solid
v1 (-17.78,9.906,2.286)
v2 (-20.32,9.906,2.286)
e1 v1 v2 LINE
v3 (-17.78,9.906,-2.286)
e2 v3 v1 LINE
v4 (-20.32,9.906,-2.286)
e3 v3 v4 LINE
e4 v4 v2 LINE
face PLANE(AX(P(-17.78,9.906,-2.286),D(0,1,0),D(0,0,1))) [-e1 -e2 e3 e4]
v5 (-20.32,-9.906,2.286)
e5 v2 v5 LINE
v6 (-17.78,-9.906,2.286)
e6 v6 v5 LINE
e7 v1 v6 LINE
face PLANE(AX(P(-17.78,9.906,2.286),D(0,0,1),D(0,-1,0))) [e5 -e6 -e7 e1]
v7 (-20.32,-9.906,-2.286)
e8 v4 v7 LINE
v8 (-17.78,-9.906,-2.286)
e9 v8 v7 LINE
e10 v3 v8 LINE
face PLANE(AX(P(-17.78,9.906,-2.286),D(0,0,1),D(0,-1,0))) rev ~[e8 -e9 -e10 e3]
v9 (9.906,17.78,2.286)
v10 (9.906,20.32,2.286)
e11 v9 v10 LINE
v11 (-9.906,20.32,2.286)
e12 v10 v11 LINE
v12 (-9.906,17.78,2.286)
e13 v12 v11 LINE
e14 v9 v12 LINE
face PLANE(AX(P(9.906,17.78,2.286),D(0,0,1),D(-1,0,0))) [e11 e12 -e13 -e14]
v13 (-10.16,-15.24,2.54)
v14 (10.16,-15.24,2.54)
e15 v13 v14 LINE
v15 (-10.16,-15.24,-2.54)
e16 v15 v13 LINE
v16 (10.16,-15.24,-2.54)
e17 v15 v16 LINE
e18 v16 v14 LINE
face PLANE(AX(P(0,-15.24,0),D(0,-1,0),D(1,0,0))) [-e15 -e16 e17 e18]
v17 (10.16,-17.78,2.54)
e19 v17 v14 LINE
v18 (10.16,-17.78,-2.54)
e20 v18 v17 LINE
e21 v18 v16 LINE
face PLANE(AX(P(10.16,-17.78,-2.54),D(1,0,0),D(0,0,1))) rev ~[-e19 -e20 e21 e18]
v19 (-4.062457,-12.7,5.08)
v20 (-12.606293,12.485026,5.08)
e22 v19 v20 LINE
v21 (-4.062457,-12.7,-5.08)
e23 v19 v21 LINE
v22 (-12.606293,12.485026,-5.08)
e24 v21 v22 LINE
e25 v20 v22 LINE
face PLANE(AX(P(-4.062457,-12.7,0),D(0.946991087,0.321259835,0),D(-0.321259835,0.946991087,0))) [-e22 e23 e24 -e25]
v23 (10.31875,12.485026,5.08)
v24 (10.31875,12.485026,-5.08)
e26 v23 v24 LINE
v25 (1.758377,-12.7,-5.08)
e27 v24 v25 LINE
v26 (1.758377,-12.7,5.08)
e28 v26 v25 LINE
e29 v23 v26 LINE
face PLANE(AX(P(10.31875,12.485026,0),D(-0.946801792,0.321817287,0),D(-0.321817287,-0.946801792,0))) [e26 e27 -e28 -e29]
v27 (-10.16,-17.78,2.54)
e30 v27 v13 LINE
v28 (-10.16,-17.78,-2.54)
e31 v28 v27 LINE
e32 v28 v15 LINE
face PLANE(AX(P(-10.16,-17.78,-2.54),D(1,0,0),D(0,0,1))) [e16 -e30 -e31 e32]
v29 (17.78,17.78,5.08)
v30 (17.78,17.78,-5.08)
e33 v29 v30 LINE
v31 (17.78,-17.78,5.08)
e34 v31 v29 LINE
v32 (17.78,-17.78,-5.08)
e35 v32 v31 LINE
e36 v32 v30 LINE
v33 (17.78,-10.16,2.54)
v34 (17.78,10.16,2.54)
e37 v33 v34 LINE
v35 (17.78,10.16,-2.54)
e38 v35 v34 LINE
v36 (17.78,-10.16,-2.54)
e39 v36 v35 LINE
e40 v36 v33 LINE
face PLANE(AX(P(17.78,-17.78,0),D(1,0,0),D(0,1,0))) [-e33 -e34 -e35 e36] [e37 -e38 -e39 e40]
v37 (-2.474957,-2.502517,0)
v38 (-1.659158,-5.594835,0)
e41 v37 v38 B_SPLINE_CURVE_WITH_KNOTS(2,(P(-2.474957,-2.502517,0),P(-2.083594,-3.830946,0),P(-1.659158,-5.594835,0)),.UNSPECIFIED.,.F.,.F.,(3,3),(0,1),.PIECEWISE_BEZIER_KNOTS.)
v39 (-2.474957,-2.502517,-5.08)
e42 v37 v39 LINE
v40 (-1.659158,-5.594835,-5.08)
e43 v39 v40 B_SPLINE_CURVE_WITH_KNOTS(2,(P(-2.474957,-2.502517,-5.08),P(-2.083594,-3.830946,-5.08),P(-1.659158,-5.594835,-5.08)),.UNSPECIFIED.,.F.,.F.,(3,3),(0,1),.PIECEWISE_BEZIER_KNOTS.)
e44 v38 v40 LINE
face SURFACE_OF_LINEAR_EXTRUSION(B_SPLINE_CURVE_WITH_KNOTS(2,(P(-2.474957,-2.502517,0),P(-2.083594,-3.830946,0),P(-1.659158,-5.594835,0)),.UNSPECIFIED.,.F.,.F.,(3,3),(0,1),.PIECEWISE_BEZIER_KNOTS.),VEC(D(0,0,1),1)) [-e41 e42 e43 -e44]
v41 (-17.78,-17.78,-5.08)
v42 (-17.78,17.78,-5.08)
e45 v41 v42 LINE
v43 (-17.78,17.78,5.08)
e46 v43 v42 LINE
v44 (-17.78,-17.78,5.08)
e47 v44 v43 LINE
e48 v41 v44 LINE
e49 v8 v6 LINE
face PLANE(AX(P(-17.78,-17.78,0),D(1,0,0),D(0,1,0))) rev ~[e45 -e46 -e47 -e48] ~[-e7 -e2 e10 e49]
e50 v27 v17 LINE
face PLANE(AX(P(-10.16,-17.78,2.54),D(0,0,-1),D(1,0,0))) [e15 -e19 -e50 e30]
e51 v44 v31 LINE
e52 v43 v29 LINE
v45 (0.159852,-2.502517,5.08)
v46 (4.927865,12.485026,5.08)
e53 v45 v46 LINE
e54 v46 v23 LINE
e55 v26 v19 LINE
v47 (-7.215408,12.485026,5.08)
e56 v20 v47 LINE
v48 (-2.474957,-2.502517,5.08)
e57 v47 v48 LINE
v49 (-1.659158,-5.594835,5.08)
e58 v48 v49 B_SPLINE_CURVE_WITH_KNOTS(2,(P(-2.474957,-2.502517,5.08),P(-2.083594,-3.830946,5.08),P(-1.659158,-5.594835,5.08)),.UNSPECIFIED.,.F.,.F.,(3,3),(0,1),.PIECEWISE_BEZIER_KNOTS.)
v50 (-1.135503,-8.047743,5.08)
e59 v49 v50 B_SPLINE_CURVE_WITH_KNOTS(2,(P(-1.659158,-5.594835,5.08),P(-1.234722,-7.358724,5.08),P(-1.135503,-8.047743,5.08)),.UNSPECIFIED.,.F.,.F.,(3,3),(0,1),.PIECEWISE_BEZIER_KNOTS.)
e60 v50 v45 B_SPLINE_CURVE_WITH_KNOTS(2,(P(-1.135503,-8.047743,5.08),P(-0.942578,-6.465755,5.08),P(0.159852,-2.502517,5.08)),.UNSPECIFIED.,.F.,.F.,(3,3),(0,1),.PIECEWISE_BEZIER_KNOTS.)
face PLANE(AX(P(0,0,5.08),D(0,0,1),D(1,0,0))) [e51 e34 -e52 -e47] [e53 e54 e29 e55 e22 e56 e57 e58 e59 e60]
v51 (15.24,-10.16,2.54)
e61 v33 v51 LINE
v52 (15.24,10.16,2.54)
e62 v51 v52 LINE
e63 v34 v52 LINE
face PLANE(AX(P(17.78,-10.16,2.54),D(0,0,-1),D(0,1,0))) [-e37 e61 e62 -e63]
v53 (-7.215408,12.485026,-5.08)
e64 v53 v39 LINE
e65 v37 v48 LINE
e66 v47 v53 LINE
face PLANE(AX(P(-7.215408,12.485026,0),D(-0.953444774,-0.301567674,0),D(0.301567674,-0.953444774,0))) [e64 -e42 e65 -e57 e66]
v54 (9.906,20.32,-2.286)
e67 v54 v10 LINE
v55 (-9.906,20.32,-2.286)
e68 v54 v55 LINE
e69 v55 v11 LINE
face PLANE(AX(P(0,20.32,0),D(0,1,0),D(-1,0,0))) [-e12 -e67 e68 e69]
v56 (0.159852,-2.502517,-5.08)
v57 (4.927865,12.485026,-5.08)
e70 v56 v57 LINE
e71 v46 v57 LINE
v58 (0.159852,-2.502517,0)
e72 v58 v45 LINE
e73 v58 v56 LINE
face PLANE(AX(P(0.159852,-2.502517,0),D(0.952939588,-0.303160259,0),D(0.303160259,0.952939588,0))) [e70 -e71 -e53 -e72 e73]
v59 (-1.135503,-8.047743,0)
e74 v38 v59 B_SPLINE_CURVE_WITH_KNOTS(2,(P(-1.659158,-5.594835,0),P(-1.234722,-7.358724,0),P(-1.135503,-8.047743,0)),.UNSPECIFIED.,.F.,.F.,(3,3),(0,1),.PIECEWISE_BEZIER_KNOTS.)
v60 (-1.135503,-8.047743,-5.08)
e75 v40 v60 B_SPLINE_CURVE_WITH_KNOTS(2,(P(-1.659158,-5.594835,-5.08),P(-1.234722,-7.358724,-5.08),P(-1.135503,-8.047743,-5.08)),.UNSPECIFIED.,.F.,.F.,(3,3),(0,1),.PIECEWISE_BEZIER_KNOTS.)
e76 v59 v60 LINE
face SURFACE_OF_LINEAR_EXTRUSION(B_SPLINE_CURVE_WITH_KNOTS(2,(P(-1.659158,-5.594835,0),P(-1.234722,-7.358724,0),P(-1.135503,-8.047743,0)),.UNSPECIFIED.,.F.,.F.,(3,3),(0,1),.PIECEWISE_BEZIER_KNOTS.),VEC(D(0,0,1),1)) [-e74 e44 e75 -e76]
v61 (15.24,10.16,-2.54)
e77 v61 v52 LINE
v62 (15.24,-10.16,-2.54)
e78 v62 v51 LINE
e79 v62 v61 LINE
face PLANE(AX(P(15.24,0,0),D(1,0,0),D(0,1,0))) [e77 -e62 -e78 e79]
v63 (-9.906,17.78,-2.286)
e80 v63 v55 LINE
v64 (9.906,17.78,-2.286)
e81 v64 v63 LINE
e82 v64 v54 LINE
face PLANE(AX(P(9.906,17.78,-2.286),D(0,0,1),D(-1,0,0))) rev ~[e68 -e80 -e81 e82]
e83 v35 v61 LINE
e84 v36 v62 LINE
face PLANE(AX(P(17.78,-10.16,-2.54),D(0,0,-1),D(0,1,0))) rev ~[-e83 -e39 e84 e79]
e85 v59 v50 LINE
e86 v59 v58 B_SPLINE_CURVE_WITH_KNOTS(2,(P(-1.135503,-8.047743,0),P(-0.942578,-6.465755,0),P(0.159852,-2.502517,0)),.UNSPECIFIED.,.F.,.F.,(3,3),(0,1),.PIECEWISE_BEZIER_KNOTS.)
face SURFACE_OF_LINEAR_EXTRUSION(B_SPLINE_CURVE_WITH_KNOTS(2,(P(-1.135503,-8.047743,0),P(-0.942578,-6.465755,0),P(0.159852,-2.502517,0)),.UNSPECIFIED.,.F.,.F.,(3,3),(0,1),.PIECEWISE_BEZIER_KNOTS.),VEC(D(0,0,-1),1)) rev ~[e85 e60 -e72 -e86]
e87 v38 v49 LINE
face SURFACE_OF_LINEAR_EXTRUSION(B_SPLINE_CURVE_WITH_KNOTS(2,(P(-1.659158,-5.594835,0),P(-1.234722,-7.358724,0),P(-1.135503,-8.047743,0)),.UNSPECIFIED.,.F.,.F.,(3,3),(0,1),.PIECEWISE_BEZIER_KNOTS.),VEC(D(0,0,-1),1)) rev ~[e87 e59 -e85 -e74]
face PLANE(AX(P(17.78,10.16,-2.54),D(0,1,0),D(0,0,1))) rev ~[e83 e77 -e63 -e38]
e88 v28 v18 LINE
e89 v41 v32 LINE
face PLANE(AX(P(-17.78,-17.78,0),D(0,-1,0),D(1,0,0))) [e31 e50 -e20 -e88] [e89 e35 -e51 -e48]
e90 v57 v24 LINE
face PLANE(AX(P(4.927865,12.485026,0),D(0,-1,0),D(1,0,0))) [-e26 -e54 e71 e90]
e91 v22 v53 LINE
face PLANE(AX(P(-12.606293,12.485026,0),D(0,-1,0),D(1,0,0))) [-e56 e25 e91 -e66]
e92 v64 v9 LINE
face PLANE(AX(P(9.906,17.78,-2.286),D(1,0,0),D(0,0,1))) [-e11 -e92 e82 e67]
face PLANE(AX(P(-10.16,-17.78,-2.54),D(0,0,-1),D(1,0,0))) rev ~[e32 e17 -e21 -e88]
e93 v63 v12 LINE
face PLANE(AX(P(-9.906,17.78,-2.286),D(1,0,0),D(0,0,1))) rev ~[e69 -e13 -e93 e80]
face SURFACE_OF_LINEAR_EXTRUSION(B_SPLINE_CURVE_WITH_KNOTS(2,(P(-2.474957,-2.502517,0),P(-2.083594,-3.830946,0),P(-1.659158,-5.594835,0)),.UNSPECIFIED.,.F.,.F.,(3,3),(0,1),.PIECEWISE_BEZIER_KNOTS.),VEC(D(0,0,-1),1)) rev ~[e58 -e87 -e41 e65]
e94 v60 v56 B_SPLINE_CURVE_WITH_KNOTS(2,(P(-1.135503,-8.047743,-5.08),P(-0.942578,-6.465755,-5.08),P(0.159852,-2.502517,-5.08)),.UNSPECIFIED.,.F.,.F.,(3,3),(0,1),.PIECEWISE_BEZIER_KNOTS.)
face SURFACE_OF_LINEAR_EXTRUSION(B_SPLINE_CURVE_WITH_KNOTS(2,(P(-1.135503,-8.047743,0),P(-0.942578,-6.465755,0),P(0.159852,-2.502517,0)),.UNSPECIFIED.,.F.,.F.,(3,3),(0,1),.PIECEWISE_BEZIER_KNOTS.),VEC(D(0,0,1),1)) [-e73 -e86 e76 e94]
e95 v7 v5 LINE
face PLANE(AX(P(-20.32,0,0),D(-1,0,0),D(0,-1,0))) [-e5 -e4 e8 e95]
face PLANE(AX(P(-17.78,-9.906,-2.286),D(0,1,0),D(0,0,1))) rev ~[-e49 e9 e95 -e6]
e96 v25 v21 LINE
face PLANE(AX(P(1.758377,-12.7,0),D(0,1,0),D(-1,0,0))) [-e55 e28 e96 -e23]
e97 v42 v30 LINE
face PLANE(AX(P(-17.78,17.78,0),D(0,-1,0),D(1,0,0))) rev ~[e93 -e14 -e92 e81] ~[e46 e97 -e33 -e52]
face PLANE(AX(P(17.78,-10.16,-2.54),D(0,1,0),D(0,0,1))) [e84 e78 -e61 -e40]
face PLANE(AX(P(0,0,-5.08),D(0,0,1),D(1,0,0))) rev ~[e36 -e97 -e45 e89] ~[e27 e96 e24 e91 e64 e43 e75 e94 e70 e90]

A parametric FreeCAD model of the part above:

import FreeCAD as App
import Part
import Sketcher
from FreeCAD import Vector
Q = App.Units.Quantity


def add_polygon(sketch, points):
    """Adds a closed chain of lines whose ends are joined by coincident constraints."""
    first, n = sketch.GeometryCount, len(points)
    for a, b in zip(points, points[1:] + points[:1]):
        sketch.addGeometry(Part.LineSegment(App.Vector(*a, 0), App.Vector(*b, 0)), False)
    for i in range(n):
        sketch.addConstraint(Sketcher.Constraint("Coincident", first + i, 2, first + (i + 1) % n, 1))

doc = App.newDocument("Part")
body = doc.addObject("PartDesign::Body", "Body")

# Sketch on XY plane
sketch1 = doc.addObject("Sketcher::SketchObject", "Sketch")
body.addObject(sketch1)
sketch1.AttachmentSupport = (doc.XY_Plane, [""])
sketch1.MapMode = "FlatFace"
add_polygon(sketch1, [(-17.78, 17.78), (-17.78, -17.78), (17.78, -17.78), (17.78, 17.78)])  # lines 0-3
sketch1.addGeometry(Part.BSplineCurve([Vector(-1.135503, -8.047743, 0), Vector(-0.942578, -6.465755, 0), Vector(0.159852, -2.502517, 0)], [3, 3], [0, 1], False, 2, [1, 1, 1], False), False)  # 4
sketch1.addGeometry(Part.LineSegment(Vector(0.159852, -2.502517, 0), Vector(4.927865, 12.485026, 0)), False)  # 5
sketch1.addGeometry(Part.LineSegment(Vector(4.927865, 12.485026, 0), Vector(10.31875, 12.485026, 0)), False)  # 6
sketch1.addGeometry(Part.LineSegment(Vector(10.31875, 12.485026, 0), Vector(1.758377, -12.7, 0)), False)  # 7
sketch1.addGeometry(Part.LineSegment(Vector(1.758377, -12.7, 0), Vector(-4.062457, -12.7, 0)), False)  # 8
sketch1.addGeometry(Part.LineSegment(Vector(-4.062457, -12.7, 0), Vector(-12.606293, 12.485026, 0)), False)  # 9
sketch1.addGeometry(Part.LineSegment(Vector(-12.606293, 12.485026, 0), Vector(-7.215408, 12.485026, 0)), False)  # 10
sketch1.addGeometry(Part.LineSegment(Vector(-7.215408, 12.485026, 0), Vector(-2.474957, -2.502517, 0)), False)  # 11
sketch1.addGeometry(Part.BSplineCurve([Vector(-2.474957, -2.502517, 0), Vector(-2.083594, -3.830946, 0), Vector(-1.659158, -5.594835, 0)], [3, 3], [0, 1], False, 2, [1, 1, 1], False), False)  # 12
sketch1.addGeometry(Part.BSplineCurve([Vector(-1.659158, -5.594835, 0), Vector(-1.234722, -7.358724, 0), Vector(-1.135503, -8.047743, 0)], [3, 3], [0, 1], False, 2, [1, 1, 1], False), False)  # 13
sketch1.addConstraint(Sketcher.Constraint("Block", 4))
sketch1.addConstraint(Sketcher.Constraint("Block", 12))
sketch1.addConstraint(Sketcher.Constraint("Block", 13))
sketch1.addConstraint(Sketcher.Constraint("Coincident", 4, 2, 5, 1))
sketch1.addConstraint(Sketcher.Constraint("Coincident", 5, 2, 6, 1))
sketch1.addConstraint(Sketcher.Constraint("Coincident", 6, 2, 7, 1))
sketch1.addConstraint(Sketcher.Constraint("Coincident", 7, 2, 8, 1))
sketch1.addConstraint(Sketcher.Constraint("Coincident", 8, 2, 9, 1))
sketch1.addConstraint(Sketcher.Constraint("Coincident", 9, 2, 10, 1))
sketch1.addConstraint(Sketcher.Constraint("Coincident", 10, 2, 11, 1))
sketch1.addConstraint(Sketcher.Constraint("Coincident", 11, 2, 12, 1))
sketch1.addConstraint(Sketcher.Constraint("Vertical", 0))
sketch1.addConstraint(Sketcher.Constraint("Horizontal", 1))
sketch1.addConstraint(Sketcher.Constraint("Vertical", 2))
sketch1.addConstraint(Sketcher.Constraint("Horizontal", 3))
sketch1.addConstraint(Sketcher.Constraint("Horizontal", 6))
sketch1.addConstraint(Sketcher.Constraint("Horizontal", 8))
sketch1.addConstraint(Sketcher.Constraint("Horizontal", 10))
sketch1.addConstraint(Sketcher.Constraint("Symmetric", 0, 2, 2, 2, -1, 1))
sketch1.addConstraint(Sketcher.Constraint("Horizontal", 6, 2, 9, 2))
sketch1.addConstraint(Sketcher.Constraint("Equal", 6, 10))
sketch1.addConstraint(Sketcher.Constraint("Equal", 3, 0))
sketch1.addConstraint(Sketcher.Constraint("DistanceX", 1, 1, 1, 2, Q("1.4 in")))
sketch1.addConstraint(Sketcher.Constraint("DistanceY", 7, 2, -1, 1, Q("0.5 in")))
sketch1.addConstraint(Sketcher.Constraint("DistanceX", -1, 1, 6, 2, Q("0.40625 in")))
sketch1.addConstraint(Sketcher.Constraint("DistanceX", 8, 2, 11, 2, Q("0.0625 in")))
sketch1.addConstraint(Sketcher.Constraint("Distance", 11, Q("15.719362 mm")))
sketch1.addConstraint(Sketcher.Constraint("DistanceX", 6, 1, 6, 2, Q("5.390885 mm")))
sketch1.addConstraint(Sketcher.Constraint("DistanceX", 8, 2, 8, 1, Q("5.820833 mm")))
sketch1.addConstraint(Sketcher.Constraint("DistanceX", 9, 2, 7, 2, Q("14.36467 mm")))
pad1 = doc.addObject("PartDesign::Pad", "Pad")
body.addObject(pad1)
pad1.Profile = sketch1
pad1.Length = Q("0.4 in")
pad1.Midplane = True

# Sketch on XZ plane
sketch2 = doc.addObject("Sketcher::SketchObject", "Sketch001")
body.addObject(sketch2)
sketch2.AttachmentSupport = (doc.XZ_Plane, [""])
sketch2.MapMode = "FlatFace"
sketch2.AttachmentOffset = App.Placement(Vector(0, 0, -0.7 * 25.4), App.Rotation())
add_polygon(sketch2, [(9.9, 2.3), (9.9, -2.3), (-9.9, -2.3), (-9.9, 2.3)])  # lines 0-3
sketch2.addConstraint(Sketcher.Constraint("Vertical", 0))
sketch2.addConstraint(Sketcher.Constraint("Horizontal", 1))
sketch2.addConstraint(Sketcher.Constraint("Vertical", 2))
sketch2.addConstraint(Sketcher.Constraint("Horizontal", 3))
sketch2.addConstraint(Sketcher.Constraint("Symmetric", 0, 2, 2, 2, -1, 1))
sketch2.addConstraint(Sketcher.Constraint("DistanceX", 1, 2, 1, 1, Q("0.78 in")))
sketch2.addConstraint(Sketcher.Constraint("DistanceY", 0, 2, 0, 1, Q("0.18 in")))
pad2 = doc.addObject("PartDesign::Pad", "Pad001")
body.addObject(pad2)
pad2.Profile = sketch2
pad2.Length = Q("0.1 in")
pad2.Reversed = True

# Sketch on YZ plane
sketch3 = doc.addObject("Sketcher::SketchObject", "Sketch002")
body.addObject(sketch3)
sketch3.AttachmentSupport = (doc.YZ_Plane, [""])
sketch3.MapMode = "FlatFace"
sketch3.AttachmentOffset = App.Placement(Vector(0, 0, -0.7 * 25.4), App.Rotation())
add_polygon(sketch3, [(9.9, 2.3), (9.9, -2.3), (-9.9, -2.3), (-9.9, 2.3)])  # lines 0-3
sketch3.addConstraint(Sketcher.Constraint("Vertical", 0))
sketch3.addConstraint(Sketcher.Constraint("Horizontal", 1))
sketch3.addConstraint(Sketcher.Constraint("Vertical", 2))
sketch3.addConstraint(Sketcher.Constraint("Horizontal", 3))
sketch3.addConstraint(Sketcher.Constraint("Symmetric", 0, 2, 2, 2, -1, 1))
sketch3.addConstraint(Sketcher.Constraint("DistanceX", 1, 2, 1, 1, Q("0.78 in")))
sketch3.addConstraint(Sketcher.Constraint("DistanceY", 0, 2, 0, 1, Q("0.18 in")))
pad3 = doc.addObject("PartDesign::Pad", "Pad002")
body.addObject(pad3)
pad3.Profile = sketch3
pad3.Length = Q("0.1 in")
pad3.Reversed = True

# Sketch on XZ plane
sketch4 = doc.addObject("Sketcher::SketchObject", "Sketch003")
body.addObject(sketch4)
sketch4.AttachmentSupport = (doc.XZ_Plane, [""])
sketch4.MapMode = "FlatFace"
sketch4.AttachmentOffset = App.Placement(Vector(0, 0, 0.7 * 25.4), App.Rotation())
add_polygon(sketch4, [(-10, 3), (-10, -3), (10, -3), (10, 3)])  # lines 0-3
sketch4.addConstraint(Sketcher.Constraint("Vertical", 0))
sketch4.addConstraint(Sketcher.Constraint("Horizontal", 1))
sketch4.addConstraint(Sketcher.Constraint("Vertical", 2))
sketch4.addConstraint(Sketcher.Constraint("Horizontal", 3))
sketch4.addConstraint(Sketcher.Constraint("Symmetric", 0, 2, 2, 2, -1, 1))
sketch4.addConstraint(Sketcher.Constraint("DistanceX", 1, 1, 1, 2, Q("0.8 in")))
sketch4.addConstraint(Sketcher.Constraint("DistanceY", 0, 2, 0, 1, Q("0.2 in")))
pocket1 = doc.addObject("PartDesign::Pocket", "Pocket")
body.addObject(pocket1)
pocket1.Profile = sketch4
pocket1.Length = Q("0.1 in")

# Sketch on YZ plane
sketch5 = doc.addObject("Sketcher::SketchObject", "Sketch004")
body.addObject(sketch5)
sketch5.AttachmentSupport = (doc.YZ_Plane, [""])
sketch5.MapMode = "FlatFace"
sketch5.AttachmentOffset = App.Placement(Vector(0, 0, 0.7 * 25.4), App.Rotation())
add_polygon(sketch5, [(-10, 3), (-10, -3), (10, -3), (10, 3)])  # lines 0-3
sketch5.addConstraint(Sketcher.Constraint("Vertical", 0))
sketch5.addConstraint(Sketcher.Constraint("Horizontal", 1))
sketch5.addConstraint(Sketcher.Constraint("Vertical", 2))
sketch5.addConstraint(Sketcher.Constraint("Horizontal", 3))
sketch5.addConstraint(Sketcher.Constraint("Symmetric", 0, 2, 2, 2, -1, 1))
sketch5.addConstraint(Sketcher.Constraint("DistanceX", 1, 1, 1, 2, Q("0.8 in")))
sketch5.addConstraint(Sketcher.Constraint("DistanceY", 0, 2, 0, 1, Q("0.2 in")))
pocket2 = doc.addObject("PartDesign::Pocket", "Pocket001")
body.addObject(pocket2)
pocket2.Profile = sketch5
pocket2.Length = Q("0.1 in")

doc.recompute()
